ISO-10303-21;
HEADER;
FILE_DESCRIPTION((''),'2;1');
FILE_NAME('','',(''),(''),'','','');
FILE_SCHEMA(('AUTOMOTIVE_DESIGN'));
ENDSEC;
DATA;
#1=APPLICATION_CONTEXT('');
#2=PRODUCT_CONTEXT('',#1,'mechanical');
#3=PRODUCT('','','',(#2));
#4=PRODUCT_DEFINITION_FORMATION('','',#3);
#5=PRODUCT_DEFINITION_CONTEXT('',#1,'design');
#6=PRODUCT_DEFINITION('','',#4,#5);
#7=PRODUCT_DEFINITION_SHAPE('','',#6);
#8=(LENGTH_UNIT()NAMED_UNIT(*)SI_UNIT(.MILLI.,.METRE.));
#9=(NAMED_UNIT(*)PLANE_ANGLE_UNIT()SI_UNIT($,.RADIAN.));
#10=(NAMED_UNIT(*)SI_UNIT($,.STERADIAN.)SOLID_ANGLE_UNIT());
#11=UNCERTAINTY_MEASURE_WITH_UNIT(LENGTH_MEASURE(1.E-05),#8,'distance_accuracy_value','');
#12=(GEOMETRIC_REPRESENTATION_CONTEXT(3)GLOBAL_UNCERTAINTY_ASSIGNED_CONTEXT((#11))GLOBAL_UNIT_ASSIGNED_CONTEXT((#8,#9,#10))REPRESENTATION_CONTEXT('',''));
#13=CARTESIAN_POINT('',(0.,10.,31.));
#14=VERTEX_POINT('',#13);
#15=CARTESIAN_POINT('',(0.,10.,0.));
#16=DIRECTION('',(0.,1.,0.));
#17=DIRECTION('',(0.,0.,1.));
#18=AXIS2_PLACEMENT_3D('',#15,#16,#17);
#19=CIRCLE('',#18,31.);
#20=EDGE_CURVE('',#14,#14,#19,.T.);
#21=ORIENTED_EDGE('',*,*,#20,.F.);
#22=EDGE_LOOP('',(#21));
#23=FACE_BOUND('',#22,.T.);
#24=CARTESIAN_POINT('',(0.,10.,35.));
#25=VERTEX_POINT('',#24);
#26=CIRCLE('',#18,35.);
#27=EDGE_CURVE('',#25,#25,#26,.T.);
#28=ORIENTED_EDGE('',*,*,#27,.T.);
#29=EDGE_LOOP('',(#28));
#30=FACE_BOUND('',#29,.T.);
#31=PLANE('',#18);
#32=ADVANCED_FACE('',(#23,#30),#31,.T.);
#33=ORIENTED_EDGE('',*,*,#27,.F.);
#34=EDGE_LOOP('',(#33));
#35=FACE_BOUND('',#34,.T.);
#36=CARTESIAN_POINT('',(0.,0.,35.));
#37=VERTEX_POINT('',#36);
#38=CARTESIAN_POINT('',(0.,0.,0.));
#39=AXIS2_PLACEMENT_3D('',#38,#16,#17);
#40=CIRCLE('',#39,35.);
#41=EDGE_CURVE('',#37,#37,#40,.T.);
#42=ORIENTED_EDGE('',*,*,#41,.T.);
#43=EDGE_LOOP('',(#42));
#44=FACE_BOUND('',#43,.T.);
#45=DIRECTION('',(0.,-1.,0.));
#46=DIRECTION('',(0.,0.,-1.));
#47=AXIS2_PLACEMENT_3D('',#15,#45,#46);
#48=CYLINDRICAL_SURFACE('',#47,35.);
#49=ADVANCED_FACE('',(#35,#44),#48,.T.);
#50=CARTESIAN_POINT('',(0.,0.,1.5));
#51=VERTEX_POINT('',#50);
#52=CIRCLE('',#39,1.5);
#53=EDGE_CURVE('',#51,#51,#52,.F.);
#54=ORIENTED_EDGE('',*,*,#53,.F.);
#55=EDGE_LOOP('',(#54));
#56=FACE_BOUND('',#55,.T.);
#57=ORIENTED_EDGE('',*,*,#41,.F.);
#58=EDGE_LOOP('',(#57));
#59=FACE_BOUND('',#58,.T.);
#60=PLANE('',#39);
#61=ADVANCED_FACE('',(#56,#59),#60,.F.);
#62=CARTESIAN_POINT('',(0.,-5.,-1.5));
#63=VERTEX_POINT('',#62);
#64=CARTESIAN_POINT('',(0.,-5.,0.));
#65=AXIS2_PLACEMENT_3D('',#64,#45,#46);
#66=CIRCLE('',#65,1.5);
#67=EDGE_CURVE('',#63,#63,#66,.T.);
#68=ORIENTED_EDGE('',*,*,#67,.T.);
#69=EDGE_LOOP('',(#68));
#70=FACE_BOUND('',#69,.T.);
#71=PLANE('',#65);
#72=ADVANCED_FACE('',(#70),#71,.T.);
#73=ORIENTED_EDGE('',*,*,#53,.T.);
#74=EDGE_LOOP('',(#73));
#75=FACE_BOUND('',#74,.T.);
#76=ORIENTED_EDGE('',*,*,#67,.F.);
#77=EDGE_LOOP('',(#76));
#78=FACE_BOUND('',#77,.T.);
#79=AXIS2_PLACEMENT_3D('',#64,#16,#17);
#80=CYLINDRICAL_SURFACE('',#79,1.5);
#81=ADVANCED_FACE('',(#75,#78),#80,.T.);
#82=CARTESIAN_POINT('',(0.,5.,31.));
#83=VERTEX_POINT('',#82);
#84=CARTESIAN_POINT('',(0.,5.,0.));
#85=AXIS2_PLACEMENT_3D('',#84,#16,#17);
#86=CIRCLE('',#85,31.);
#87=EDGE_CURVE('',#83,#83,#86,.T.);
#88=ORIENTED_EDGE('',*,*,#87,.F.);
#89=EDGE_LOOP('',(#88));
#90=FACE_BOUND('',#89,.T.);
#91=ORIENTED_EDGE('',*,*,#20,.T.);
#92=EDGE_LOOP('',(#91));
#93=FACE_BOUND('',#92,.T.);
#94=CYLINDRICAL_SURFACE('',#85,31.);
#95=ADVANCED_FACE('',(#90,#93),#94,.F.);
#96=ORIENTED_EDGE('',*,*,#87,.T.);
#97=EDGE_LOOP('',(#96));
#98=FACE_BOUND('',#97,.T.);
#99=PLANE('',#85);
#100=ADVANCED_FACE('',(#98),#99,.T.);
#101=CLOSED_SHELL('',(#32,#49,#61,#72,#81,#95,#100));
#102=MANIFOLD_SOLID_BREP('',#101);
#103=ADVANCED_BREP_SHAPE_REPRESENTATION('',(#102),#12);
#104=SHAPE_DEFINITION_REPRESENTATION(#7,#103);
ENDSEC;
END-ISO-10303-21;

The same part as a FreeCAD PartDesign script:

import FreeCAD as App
import Part
import Sketcher

doc = App.newDocument("Part")
body = doc.addObject("PartDesign::Body", "Body")

# Sketch on XZ plane
sketch1 = body.newObject("Sketcher::SketchObject", "Sketch")
sketch1.AttachmentSupport = (doc.getObject("XZ_Plane"), [""])
sketch1.MapMode = "FlatFace"
sketch1.addGeometry(Part.Circle(App.Vector(0, 0, 0), App.Vector(0, 0, 1), 35), False)
sketch1.addConstraint(Sketcher.Constraint("Coincident", 0, 3, -1, 1))
sketch1.addConstraint(Sketcher.Constraint("Diameter", 0, 70.0))
pad1 = body.newObject("PartDesign::Pad", "Pad")
pad1.Profile = sketch1
pad1.Length = 10
pad1.Reversed = True

# Sketch on XZ plane
sketch2 = body.newObject("Sketcher::SketchObject", "Sketch001")
sketch2.AttachmentSupport = (doc.getObject("XZ_Plane"), [""])
sketch2.MapMode = "FlatFace"
sketch2.AttachmentOffset = App.Placement(App.Vector(0, 0, -10), App.Rotation())
sketch2.addGeometry(Part.Circle(App.Vector(0, 0, 0), App.Vector(0, 0, 1), 31), False)
sketch2.addConstraint(Sketcher.Constraint("Coincident", 0, 3, -1, 1))
sketch2.addConstraint(Sketcher.Constraint("Diameter", 0, 62.0))
pocket1 = body.newObject("PartDesign::Pocket", "Pocket")
pocket1.Profile = sketch2
pocket1.Length = 5
pocket1.Reversed = True

# Sketch on XZ plane
sketch3 = body.newObject("Sketcher::SketchObject", "Sketch002")
sketch3.AttachmentSupport = (doc.getObject("XZ_Plane"), [""])
sketch3.MapMode = "FlatFace"
sketch3.addGeometry(Part.Circle(App.Vector(0, 0, 0), App.Vector(0, 0, 1), 1.5), False)
sketch3.addConstraint(Sketcher.Constraint("Coincident", 0, 3, -1, 1))
sketch3.addConstraint(Sketcher.Constraint("Diameter", 0, 3.0))
pad2 = body.newObject("PartDesign::Pad", "Pad001")
pad2.Profile = sketch3
pad2.Length = 5

doc.recompute()
